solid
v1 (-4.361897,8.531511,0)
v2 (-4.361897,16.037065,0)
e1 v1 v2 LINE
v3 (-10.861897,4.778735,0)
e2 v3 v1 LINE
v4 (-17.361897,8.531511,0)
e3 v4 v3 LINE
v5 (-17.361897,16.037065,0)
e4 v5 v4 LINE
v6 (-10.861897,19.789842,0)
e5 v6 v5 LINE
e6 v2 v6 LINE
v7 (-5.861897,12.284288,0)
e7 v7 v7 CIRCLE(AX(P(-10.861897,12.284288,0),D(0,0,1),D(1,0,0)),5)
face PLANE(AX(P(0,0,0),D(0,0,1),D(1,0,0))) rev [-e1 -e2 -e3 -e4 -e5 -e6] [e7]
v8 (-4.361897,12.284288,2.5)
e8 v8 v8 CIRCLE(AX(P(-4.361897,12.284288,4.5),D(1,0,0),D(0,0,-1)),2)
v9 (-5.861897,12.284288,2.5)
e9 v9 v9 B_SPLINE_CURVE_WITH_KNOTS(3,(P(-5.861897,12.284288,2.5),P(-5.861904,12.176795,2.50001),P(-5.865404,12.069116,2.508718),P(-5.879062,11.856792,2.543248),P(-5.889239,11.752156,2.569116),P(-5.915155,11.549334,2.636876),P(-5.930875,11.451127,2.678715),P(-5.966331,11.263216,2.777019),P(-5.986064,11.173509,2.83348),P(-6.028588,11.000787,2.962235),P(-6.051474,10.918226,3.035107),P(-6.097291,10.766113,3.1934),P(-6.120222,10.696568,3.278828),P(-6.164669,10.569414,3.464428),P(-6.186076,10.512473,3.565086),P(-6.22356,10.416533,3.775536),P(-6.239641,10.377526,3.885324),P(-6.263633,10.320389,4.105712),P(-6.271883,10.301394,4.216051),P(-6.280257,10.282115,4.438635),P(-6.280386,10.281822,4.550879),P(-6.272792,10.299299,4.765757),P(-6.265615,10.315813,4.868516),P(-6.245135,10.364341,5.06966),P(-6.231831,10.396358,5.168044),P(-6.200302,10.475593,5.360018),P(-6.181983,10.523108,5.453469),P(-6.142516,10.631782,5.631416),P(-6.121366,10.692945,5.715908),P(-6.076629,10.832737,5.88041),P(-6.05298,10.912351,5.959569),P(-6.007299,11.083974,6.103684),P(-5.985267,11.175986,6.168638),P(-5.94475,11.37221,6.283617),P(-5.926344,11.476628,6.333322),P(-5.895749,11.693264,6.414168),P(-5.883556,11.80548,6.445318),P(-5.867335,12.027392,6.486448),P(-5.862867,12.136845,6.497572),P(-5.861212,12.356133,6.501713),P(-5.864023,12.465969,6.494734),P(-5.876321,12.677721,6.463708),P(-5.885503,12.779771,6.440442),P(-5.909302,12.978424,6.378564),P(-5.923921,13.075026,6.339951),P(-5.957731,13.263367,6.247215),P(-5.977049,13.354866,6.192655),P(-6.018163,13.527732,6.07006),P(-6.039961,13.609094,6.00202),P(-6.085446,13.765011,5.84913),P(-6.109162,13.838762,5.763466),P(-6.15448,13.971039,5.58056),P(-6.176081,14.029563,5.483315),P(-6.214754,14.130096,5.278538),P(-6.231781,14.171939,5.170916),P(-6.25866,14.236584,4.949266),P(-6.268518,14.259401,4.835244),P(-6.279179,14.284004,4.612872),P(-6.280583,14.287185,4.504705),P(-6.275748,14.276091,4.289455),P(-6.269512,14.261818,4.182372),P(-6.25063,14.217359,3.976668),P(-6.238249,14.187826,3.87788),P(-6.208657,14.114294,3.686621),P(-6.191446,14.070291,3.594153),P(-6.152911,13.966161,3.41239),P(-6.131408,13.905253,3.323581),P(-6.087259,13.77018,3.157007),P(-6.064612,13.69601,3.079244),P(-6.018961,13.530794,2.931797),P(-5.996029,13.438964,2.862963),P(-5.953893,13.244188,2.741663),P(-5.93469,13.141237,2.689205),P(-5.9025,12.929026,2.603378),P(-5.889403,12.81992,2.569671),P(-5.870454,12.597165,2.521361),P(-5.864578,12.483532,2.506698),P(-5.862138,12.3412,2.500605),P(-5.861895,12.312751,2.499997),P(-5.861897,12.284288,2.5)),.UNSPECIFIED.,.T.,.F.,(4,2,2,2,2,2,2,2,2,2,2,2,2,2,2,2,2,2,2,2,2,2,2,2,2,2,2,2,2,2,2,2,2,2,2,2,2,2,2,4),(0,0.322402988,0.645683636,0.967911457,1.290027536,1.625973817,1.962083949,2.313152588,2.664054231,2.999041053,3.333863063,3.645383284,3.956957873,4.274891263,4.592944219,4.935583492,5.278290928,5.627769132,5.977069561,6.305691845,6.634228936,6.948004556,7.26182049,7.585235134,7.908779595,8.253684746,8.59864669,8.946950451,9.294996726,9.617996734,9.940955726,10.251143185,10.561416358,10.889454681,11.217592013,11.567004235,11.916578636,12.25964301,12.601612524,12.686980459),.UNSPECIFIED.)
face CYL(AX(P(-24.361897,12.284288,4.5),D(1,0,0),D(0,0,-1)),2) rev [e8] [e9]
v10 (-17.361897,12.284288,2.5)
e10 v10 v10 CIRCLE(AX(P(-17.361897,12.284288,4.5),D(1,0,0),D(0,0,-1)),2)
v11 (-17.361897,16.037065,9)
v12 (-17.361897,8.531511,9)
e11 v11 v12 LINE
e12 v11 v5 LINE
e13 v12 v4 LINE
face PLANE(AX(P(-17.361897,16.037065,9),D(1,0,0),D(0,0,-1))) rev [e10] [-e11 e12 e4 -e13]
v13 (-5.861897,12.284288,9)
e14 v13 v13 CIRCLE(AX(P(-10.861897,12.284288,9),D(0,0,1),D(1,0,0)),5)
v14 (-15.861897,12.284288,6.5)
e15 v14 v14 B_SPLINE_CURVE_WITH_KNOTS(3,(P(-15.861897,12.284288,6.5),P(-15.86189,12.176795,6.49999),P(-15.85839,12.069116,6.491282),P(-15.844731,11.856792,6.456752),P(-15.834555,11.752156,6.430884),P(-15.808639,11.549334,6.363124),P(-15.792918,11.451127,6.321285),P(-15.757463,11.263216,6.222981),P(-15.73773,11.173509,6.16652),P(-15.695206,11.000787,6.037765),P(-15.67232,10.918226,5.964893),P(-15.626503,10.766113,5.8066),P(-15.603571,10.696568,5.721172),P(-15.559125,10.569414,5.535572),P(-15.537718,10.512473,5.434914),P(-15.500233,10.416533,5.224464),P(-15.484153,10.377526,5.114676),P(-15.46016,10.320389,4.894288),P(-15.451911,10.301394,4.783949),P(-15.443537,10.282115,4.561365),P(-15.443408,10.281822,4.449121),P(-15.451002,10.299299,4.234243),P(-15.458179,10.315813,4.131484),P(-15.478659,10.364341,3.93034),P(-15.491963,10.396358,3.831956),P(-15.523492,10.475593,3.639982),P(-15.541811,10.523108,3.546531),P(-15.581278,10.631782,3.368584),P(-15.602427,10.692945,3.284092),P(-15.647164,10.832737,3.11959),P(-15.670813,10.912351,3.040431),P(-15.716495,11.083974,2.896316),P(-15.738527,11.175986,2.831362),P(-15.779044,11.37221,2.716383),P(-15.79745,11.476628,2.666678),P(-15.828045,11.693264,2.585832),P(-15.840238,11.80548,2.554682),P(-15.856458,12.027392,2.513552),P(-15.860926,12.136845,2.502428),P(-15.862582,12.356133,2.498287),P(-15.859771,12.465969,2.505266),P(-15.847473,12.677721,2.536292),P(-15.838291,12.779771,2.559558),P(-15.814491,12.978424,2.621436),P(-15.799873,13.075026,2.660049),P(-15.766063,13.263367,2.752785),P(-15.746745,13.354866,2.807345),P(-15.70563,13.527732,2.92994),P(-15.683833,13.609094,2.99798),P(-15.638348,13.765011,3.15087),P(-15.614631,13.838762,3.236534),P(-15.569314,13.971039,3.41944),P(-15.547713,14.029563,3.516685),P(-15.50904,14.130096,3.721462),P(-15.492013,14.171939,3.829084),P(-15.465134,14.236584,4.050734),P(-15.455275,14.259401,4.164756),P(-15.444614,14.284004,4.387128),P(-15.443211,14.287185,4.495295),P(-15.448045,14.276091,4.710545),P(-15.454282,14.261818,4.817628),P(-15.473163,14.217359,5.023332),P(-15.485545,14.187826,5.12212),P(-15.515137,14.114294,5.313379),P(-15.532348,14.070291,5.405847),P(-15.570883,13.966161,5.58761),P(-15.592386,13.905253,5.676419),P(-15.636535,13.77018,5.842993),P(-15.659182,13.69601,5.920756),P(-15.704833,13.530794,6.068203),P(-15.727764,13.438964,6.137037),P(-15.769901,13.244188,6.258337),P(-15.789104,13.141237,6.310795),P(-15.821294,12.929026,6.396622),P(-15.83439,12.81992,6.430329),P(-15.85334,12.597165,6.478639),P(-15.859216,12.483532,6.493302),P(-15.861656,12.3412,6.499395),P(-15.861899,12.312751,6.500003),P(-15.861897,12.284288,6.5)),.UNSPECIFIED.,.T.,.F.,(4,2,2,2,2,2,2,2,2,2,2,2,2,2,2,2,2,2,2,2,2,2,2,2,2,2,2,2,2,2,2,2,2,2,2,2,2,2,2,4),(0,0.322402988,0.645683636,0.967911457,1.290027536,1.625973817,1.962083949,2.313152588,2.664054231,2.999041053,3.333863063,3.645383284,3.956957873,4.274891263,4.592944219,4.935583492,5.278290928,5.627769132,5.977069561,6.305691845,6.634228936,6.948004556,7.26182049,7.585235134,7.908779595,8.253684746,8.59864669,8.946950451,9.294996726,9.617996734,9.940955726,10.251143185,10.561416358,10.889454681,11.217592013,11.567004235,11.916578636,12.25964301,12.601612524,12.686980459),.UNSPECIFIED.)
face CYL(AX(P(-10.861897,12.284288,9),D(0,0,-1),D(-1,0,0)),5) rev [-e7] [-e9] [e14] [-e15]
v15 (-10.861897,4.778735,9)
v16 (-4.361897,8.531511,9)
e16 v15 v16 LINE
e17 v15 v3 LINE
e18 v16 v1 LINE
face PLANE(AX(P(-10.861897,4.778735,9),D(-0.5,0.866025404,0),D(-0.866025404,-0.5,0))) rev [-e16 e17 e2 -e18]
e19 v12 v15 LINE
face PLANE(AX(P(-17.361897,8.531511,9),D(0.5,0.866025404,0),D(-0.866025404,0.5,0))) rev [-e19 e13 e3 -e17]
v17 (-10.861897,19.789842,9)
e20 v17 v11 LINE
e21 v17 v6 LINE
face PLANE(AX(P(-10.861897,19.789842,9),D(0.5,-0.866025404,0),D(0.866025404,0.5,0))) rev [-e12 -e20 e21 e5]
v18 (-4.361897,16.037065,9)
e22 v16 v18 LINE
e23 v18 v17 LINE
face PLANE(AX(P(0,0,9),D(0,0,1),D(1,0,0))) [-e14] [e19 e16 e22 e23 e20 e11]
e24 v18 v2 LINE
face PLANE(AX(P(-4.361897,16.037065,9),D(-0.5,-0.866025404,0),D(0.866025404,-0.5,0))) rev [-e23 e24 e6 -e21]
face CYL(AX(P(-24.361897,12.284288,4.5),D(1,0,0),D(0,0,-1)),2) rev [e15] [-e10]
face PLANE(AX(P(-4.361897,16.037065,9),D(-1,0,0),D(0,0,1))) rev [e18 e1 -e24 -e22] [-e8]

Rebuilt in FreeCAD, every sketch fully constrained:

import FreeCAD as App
import Part
import Sketcher

V = App.Vector
Q = App.Units.Quantity


def add_polygon(sketch, points):
    """Adds a closed chain of lines whose ends are joined by coincident constraints."""
    first, n = sketch.GeometryCount, len(points)
    for a, b in zip(points, points[1:] + points[:1]):
        sketch.addGeometry(Part.LineSegment(App.Vector(*a, 0), App.Vector(*b, 0)), False)
    for i in range(n):
        sketch.addConstraint(Sketcher.Constraint("Coincident", first + i, 2, first + (i + 1) % n, 1))

doc = App.newDocument("Part")
body = doc.addObject("PartDesign::Body", "Body")

sketch1 = body.newObject("Sketcher::SketchObject", "Sketch")
sketch1.AttachmentSupport = (doc.getObject("XY_Plane"), [""])
sketch1.MapMode = "FlatFace"
add_polygon(sketch1, [(-4.361897, 8.531511), (-4.361897, 16.037065), (-10.861897, 19.789842), (-17.361897, 16.037065), (-17.361897, 8.531511), (-10.861897, 4.778735)])
sketch1.addGeometry(Part.Circle(V(-10.861897, 12.284288, 0), V(0, 0, 1), 5), False)
sketch1.addConstraint([
    Sketcher.Constraint("Vertical", 0),
    Sketcher.Constraint("Vertical", 3),
    Sketcher.Constraint("Parallel", 1, 4),
    Sketcher.Constraint("Parallel", 2, 5),
    Sketcher.Constraint("Horizontal", 0, 2, 2, 2),
    Sketcher.Constraint("Horizontal", 3, 2, 5, 2),
    Sketcher.Constraint("Vertical", 6, 3, 1, 2),
    Sketcher.Constraint("Vertical", 1, 2, 4, 2),
    Sketcher.Constraint("Diameter", 6, Q("10 mm")),
    Sketcher.Constraint("Angle", 1, Q("150 deg")),
    Sketcher.Constraint("DistanceX", 2, 2, 0, 2, Q("13 mm")),
    Sketcher.Constraint("DistanceY", 0, 1, 0, 2, Q("7.505553 mm")),
    Sketcher.Constraint("DistanceY", -1, 1, 6, 3, Q("12.284288 mm")),
    Sketcher.Constraint("DistanceY", -1, 1, 1, 2, Q("19.789842 mm")),
    Sketcher.Constraint("DistanceX", 6, 3, -1, 1, Q("10.861897 mm")),
])
pad1 = body.newObject("PartDesign::Pad", "Pad")
pad1.Profile = sketch1
pad1.Length = 9

sketch2 = body.newObject("Sketcher::SketchObject", "Sketch001")
sketch2.AttachmentSupport = (doc.getObject("YZ_Plane"), [""])
sketch2.MapMode = "FlatFace"
sketch2.AttachmentOffset = App.Placement(V(0, 0, -4.361897), App.Rotation())
sketch2.addGeometry(Part.Circle(V(12.284288, 4.5, 0), V(0, 0, 1), 2), False)
sketch2.addConstraint([
    Sketcher.Constraint("Diameter", 0, Q("4 mm")),
    Sketcher.Constraint("DistanceY", -1, 1, 0, 3, Q("4.5 mm")),
    Sketcher.Constraint("DistanceX", -1, 1, 0, 3, Q("12.284288 mm")),
])
pocket1 = body.newObject("PartDesign::Pocket", "Pocket")
pocket1.Profile = sketch2
pocket1.Length = 20

doc.recompute()
